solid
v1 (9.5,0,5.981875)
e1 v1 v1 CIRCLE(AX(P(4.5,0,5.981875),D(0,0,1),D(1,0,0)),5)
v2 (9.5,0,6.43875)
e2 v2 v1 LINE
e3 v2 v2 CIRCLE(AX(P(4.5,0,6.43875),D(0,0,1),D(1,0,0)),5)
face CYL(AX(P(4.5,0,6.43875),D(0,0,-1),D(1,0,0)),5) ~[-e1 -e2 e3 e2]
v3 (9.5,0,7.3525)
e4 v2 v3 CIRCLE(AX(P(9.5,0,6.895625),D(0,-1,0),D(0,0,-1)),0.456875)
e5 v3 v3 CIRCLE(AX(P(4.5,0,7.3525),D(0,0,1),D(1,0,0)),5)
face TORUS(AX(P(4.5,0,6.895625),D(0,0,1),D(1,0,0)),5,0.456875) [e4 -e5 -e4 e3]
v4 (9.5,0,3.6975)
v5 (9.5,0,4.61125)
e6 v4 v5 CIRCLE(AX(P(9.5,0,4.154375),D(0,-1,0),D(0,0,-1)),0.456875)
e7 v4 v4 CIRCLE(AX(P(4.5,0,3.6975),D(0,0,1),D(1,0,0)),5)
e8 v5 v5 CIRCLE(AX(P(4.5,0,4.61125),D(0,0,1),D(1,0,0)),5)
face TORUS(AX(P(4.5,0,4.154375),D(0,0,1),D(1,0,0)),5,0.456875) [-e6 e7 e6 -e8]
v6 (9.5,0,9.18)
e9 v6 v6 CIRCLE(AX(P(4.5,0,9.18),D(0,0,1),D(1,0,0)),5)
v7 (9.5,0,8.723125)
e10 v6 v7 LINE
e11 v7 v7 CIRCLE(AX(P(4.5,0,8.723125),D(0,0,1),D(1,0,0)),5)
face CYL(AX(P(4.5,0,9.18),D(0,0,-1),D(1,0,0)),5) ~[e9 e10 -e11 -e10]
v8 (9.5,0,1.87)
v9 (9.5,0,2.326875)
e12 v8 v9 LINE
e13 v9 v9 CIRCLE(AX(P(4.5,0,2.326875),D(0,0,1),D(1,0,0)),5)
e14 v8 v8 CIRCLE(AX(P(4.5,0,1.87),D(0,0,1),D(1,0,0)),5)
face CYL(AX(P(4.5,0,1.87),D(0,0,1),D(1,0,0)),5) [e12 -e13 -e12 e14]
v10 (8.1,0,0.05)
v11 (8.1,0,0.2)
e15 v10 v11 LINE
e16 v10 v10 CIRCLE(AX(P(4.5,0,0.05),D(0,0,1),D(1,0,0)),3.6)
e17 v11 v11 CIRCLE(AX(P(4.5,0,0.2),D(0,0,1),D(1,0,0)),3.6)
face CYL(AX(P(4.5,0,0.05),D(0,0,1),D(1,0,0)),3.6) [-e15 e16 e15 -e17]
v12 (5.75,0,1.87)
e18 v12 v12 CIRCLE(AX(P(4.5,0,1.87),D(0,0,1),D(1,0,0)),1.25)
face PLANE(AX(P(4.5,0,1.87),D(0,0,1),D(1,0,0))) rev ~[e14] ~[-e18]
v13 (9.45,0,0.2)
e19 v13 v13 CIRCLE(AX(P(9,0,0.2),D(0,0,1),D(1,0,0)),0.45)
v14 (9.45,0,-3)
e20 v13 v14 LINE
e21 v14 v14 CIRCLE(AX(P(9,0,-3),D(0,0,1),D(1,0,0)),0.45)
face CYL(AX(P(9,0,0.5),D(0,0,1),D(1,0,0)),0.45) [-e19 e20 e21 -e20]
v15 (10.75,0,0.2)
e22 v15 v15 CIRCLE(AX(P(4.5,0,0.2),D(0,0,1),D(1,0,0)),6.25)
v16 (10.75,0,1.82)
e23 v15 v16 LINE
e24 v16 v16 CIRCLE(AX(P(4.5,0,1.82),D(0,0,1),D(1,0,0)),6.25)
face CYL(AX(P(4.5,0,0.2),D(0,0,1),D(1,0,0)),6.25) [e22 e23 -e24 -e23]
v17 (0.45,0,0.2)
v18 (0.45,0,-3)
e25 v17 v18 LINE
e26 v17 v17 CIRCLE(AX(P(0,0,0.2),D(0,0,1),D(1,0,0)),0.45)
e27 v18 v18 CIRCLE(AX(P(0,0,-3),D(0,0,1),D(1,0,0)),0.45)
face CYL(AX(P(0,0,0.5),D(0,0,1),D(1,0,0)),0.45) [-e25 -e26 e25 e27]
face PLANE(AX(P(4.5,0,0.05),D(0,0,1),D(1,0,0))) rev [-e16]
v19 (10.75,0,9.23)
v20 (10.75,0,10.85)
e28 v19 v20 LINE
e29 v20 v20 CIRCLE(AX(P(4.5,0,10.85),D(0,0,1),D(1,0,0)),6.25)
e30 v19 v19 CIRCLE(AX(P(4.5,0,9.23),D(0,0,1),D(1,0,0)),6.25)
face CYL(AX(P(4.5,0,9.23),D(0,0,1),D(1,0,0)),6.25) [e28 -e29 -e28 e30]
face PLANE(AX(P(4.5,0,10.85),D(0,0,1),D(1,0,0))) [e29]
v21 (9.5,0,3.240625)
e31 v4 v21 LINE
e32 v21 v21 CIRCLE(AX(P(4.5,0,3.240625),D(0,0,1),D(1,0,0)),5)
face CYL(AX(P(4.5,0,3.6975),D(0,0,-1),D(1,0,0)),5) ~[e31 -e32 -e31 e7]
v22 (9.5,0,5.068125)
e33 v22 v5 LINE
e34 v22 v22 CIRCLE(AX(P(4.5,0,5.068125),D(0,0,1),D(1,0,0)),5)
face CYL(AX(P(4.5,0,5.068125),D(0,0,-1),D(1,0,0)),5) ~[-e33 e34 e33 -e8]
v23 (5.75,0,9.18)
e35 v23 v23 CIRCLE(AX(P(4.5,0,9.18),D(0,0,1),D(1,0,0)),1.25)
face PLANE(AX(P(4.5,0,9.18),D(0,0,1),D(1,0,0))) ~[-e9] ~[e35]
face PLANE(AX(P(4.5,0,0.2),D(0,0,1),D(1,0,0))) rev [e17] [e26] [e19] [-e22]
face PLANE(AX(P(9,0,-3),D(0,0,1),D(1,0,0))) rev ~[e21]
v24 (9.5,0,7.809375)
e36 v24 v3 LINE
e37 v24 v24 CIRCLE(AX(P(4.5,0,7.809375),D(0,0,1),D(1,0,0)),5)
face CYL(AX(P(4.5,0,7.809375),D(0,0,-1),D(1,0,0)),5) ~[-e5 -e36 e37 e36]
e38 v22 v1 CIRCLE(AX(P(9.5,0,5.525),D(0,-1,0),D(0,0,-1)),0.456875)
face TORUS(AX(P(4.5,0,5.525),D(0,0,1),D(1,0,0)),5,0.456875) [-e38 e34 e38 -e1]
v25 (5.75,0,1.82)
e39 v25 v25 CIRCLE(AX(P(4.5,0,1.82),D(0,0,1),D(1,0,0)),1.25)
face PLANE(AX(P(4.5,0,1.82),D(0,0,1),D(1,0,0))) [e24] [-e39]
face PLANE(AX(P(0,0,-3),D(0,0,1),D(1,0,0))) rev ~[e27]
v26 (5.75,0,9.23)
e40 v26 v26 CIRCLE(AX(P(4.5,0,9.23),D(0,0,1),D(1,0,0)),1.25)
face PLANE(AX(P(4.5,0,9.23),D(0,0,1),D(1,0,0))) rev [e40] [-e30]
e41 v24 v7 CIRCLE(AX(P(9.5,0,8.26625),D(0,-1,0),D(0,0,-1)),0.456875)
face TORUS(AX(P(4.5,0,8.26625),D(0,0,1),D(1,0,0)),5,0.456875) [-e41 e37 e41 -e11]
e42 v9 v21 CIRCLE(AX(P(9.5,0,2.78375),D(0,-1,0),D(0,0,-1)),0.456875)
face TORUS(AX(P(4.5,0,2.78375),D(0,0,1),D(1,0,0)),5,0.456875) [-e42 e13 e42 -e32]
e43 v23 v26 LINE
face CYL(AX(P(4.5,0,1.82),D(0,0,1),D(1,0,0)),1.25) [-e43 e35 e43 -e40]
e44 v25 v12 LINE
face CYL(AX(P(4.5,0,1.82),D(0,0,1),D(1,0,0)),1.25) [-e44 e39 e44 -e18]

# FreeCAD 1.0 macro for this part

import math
import FreeCAD as App
import Part
import Sketcher
from FreeCAD import Vector
Q = App.Units.Quantity

doc = App.newDocument("Part")
body = doc.addObject("PartDesign::Body", "Body")

sketch1 = body.newObject("Sketcher::SketchObject", "Sketch")
sketch1.AttachmentSupport = (doc.getObject("XZ_Plane"), [""])
sketch1.MapMode = "FlatFace"
sketch1.addGeometry(Part.LineSegment(Vector(4.5, 0.05, 0), Vector(8.1, 0.05, 0)), False)
sketch1.addGeometry(Part.LineSegment(Vector(8.1, 0.05, 0), Vector(8.1, 0.2, 0)), False)
sketch1.addGeometry(Part.LineSegment(Vector(8.1, 0.2, 0), Vector(10.75, 0.2, 0)), False)
sketch1.addGeometry(Part.LineSegment(Vector(10.75, 0.2, 0), Vector(10.75, 1.82, 0)), False)
sketch1.addGeometry(Part.LineSegment(Vector(10.75, 1.82, 0), Vector(5.75, 1.82, 0)), False)
sketch1.addGeometry(Part.LineSegment(Vector(5.75, 1.82, 0), Vector(5.75, 9.23, 0)), False)
sketch1.addGeometry(Part.LineSegment(Vector(5.75, 9.23, 0), Vector(10.75, 9.23, 0)), False)
sketch1.addGeometry(Part.LineSegment(Vector(10.75, 9.23, 0), Vector(10.75, 10.85, 0)), False)
sketch1.addGeometry(Part.LineSegment(Vector(10.75, 10.85, 0), Vector(4.5, 10.85, 0)), False)
sketch1.addGeometry(Part.LineSegment(Vector(4.5, 10.85, 0), Vector(4.5, 0.05, 0)), False)
sketch1.addGeometry(Part.LineSegment(Vector(4.5, 0.05, 0), Vector(4.5, 10.85, 0)), True)
sketch1.addConstraint(Sketcher.Constraint("Coincident", 0, 2, 1, 1))
sketch1.addConstraint(Sketcher.Constraint("Coincident", 1, 2, 2, 1))
sketch1.addConstraint(Sketcher.Constraint("Coincident", 2, 2, 3, 1))
sketch1.addConstraint(Sketcher.Constraint("Coincident", 3, 2, 4, 1))
sketch1.addConstraint(Sketcher.Constraint("Coincident", 4, 2, 5, 1))
sketch1.addConstraint(Sketcher.Constraint("Coincident", 5, 2, 6, 1))
sketch1.addConstraint(Sketcher.Constraint("Coincident", 6, 2, 7, 1))
sketch1.addConstraint(Sketcher.Constraint("Coincident", 7, 2, 8, 1))
sketch1.addConstraint(Sketcher.Constraint("Coincident", 8, 2, 9, 1))
sketch1.addConstraint(Sketcher.Constraint("Coincident", 9, 2, 0, 1))
sketch1.addConstraint(Sketcher.Constraint("Horizontal", 0))
sketch1.addConstraint(Sketcher.Constraint("Vertical", 1))
sketch1.addConstraint(Sketcher.Constraint("Horizontal", 2))
sketch1.addConstraint(Sketcher.Constraint("Vertical", 3))
sketch1.addConstraint(Sketcher.Constraint("Horizontal", 4))
sketch1.addConstraint(Sketcher.Constraint("Vertical", 5))
sketch1.addConstraint(Sketcher.Constraint("Horizontal", 6))
sketch1.addConstraint(Sketcher.Constraint("Vertical", 7))
sketch1.addConstraint(Sketcher.Constraint("Horizontal", 8))
sketch1.addConstraint(Sketcher.Constraint("Vertical", 9))
sketch1.addConstraint(Sketcher.Constraint("Vertical", 10))
sketch1.addConstraint(Sketcher.Constraint("Coincident", 10, 1, 9, 2))
sketch1.addConstraint(Sketcher.Constraint("Horizontal", 7, 2, 10, 2))
sketch1.addConstraint(Sketcher.Constraint("Vertical", 3, 2, 6, 2))
sketch1.addConstraint(Sketcher.Constraint("Equal", 3, 7))
sketch1.addConstraint(Sketcher.Constraint("DistanceX", 4, 2, 4, 1, Q("5 mm")))
sketch1.addConstraint(Sketcher.Constraint("DistanceX", 0, 1, 0, 2, Q("3.6 mm")))
sketch1.addConstraint(Sketcher.Constraint("DistanceY", 9, 2, 9, 1, Q("10.8 mm")))
sketch1.addConstraint(Sketcher.Constraint("DistanceX", 2, 1, 2, 2, Q("2.65 mm")))
sketch1.addConstraint(Sketcher.Constraint("DistanceY", 1, 1, 1, 2, Q("0.15 mm")))
sketch1.addConstraint(Sketcher.Constraint("DistanceY", 3, 1, 3, 2, Q("1.62 mm")))
sketch1.addConstraint(Sketcher.Constraint("DistanceX", -1, 1, 0, 2, Q("8.1 mm")))
sketch1.addConstraint(Sketcher.Constraint("DistanceY", -1, 1, 1, 2, Q("0.2 mm")))
revolution = body.newObject("PartDesign::Revolution", "Revolution")
revolution.Profile = sketch1
revolution.ReferenceAxis = (sketch1, ["Axis0"])
revolution.Angle = 360
body2 = doc.addObject("PartDesign::Body", "Body001")
body2.AllowCompound = True

sketch2 = body2.newObject("Sketcher::SketchObject", "Sketch001")
sketch2.AttachmentSupport = (doc.getObject("XY_Plane001"), [""])
sketch2.MapMode = "FlatFace"
sketch2.AttachmentOffset = App.Placement(Vector(0, 0, 0.5), App.Rotation())
sketch2.addGeometry(Part.Circle(Vector(0, 0, 0), Vector(0, 0, 1), 0.45), False)
sketch2.addGeometry(Part.Circle(Vector(9, 0, 0), Vector(0, 0, 1), 0.45), False)
sketch2.addConstraint(Sketcher.Constraint("Coincident", 0, 3, -1, 1))
sketch2.addConstraint(Sketcher.Constraint("Equal", 0, 1))
sketch2.addConstraint(Sketcher.Constraint("PointOnObject", 1, 3, -1))
sketch2.addConstraint(Sketcher.Constraint("Diameter", 0, Q("0.9 mm")))
sketch2.addConstraint(Sketcher.Constraint("DistanceX", -1, 1, 1, 3, Q("9 mm")))
pad1 = body2.newObject("PartDesign::Pad", "Pad")
pad1.Profile = sketch2
pad1.Length = 3.5
pad1.Reversed = True
body3 = doc.addObject("PartDesign::Body", "Body002")

sketch3 = body3.newObject("Sketcher::SketchObject", "Sketch002")
sketch3.AttachmentSupport = (doc.getObject("XZ_Plane002"), [""])
sketch3.MapMode = "FlatFace"
sketch3.addGeometry(Part.LineSegment(Vector(5.75, 1.87, 0), Vector(9.5, 1.87, 0)), False)
sketch3.addGeometry(Part.LineSegment(Vector(9.5, 1.87, 0), Vector(9.5, 2.326875, 0)), False)
sketch3.addGeometry(Part.ArcOfCircle(Part.Circle(Vector(9.5, 2.78375, 0), Vector(0, 0, 1), 0.456875), math.radians(-90), math.radians(90)), False)
sketch3.addGeometry(Part.LineSegment(Vector(9.5, 3.240625, 0), Vector(9.5, 3.6975, 0)), False)
sketch3.addGeometry(Part.ArcOfCircle(Part.Circle(Vector(9.5, 4.154375, 0), Vector(0, 0, 1), 0.456875), math.radians(-90), math.radians(90)), False)
sketch3.addGeometry(Part.LineSegment(Vector(9.5, 4.61125, 0), Vector(9.5, 5.068125, 0)), False)
sketch3.addGeometry(Part.ArcOfCircle(Part.Circle(Vector(9.5, 5.525, 0), Vector(0, 0, 1), 0.456875), math.radians(-90), math.radians(90)), False)
sketch3.addGeometry(Part.LineSegment(Vector(9.5, 5.981875, 0), Vector(9.5, 6.43875, 0)), False)
sketch3.addGeometry(Part.ArcOfCircle(Part.Circle(Vector(9.5, 6.895625, 0), Vector(0, 0, 1), 0.456875), math.radians(-90), math.radians(90)), False)
sketch3.addGeometry(Part.LineSegment(Vector(9.5, 7.3525, 0), Vector(9.5, 7.809375, 0)), False)
sketch3.addGeometry(Part.ArcOfCircle(Part.Circle(Vector(9.5, 8.26625, 0), Vector(0, 0, 1), 0.456875), math.radians(-90), math.radians(90)), False)
sketch3.addGeometry(Part.LineSegment(Vector(9.5, 8.723125, 0), Vector(9.5, 9.18, 0)), False)
sketch3.addGeometry(Part.LineSegment(Vector(9.5, 9.18, 0), Vector(5.75, 9.18, 0)), False)
sketch3.addGeometry(Part.LineSegment(Vector(5.75, 9.18, 0), Vector(5.75, 1.87, 0)), False)
sketch3.addGeometry(Part.LineSegment(Vector(4.5, 1.87, 0), Vector(4.5, 9.18, 0)), True)
sketch3.addConstraint(Sketcher.Constraint("Coincident", 0, 2, 1, 1))
sketch3.addConstraint(Sketcher.Constraint("Coincident", 1, 2, 2, 1))
sketch3.addConstraint(Sketcher.Constraint("Coincident", 2, 2, 3, 1))
sketch3.addConstraint(Sketcher.Constraint("Coincident", 3, 2, 4, 1))
sketch3.addConstraint(Sketcher.Constraint("Coincident", 4, 2, 5, 1))
sketch3.addConstraint(Sketcher.Constraint("Coincident", 5, 2, 6, 1))
sketch3.addConstraint(Sketcher.Constraint("Coincident", 6, 2, 7, 1))
sketch3.addConstraint(Sketcher.Constraint("Coincident", 7, 2, 8, 1))
sketch3.addConstraint(Sketcher.Constraint("Coincident", 8, 2, 9, 1))
sketch3.addConstraint(Sketcher.Constraint("Coincident", 9, 2, 10, 1))
sketch3.addConstraint(Sketcher.Constraint("Coincident", 10, 2, 11, 1))
sketch3.addConstraint(Sketcher.Constraint("Coincident", 11, 2, 12, 1))
sketch3.addConstraint(Sketcher.Constraint("Coincident", 12, 2, 13, 1))
sketch3.addConstraint(Sketcher.Constraint("Coincident", 13, 2, 0, 1))
sketch3.addConstraint(Sketcher.Constraint("Horizontal", 0))
sketch3.addConstraint(Sketcher.Constraint("Vertical", 1))
sketch3.addConstraint(Sketcher.Constraint("Vertical", 3))
sketch3.addConstraint(Sketcher.Constraint("Vertical", 5))
sketch3.addConstraint(Sketcher.Constraint("Vertical", 7))
sketch3.addConstraint(Sketcher.Constraint("Vertical", 9))
sketch3.addConstraint(Sketcher.Constraint("Vertical", 11))
sketch3.addConstraint(Sketcher.Constraint("Horizontal", 12))
sketch3.addConstraint(Sketcher.Constraint("Vertical", 13))
sketch3.addConstraint(Sketcher.Constraint("Vertical", 14))
sketch3.addConstraint(Sketcher.Constraint("Equal", 2, 4))
sketch3.addConstraint(Sketcher.Constraint("Equal", 4, 6))
sketch3.addConstraint(Sketcher.Constraint("Equal", 6, 8))
sketch3.addConstraint(Sketcher.Constraint("Equal", 8, 10))
sketch3.addConstraint(Sketcher.Constraint("Horizontal", 13, 2, 14, 1))
sketch3.addConstraint(Sketcher.Constraint("Horizontal", 12, 2, 14, 2))
sketch3.addConstraint(Sketcher.Constraint("Vertical", 2, 3, 4, 3))
sketch3.addConstraint(Sketcher.Constraint("Vertical", 4, 3, 6, 3))
sketch3.addConstraint(Sketcher.Constraint("Vertical", 6, 3, 8, 3))
sketch3.addConstraint(Sketcher.Constraint("Vertical", 8, 3, 10, 3))
sketch3.addConstraint(Sketcher.Constraint("Vertical", 10, 3, 0, 2))
sketch3.addConstraint(Sketcher.Constraint("Vertical", 1, 2, 2, 2))
sketch3.addConstraint(Sketcher.Constraint("Vertical", 3, 2, 4, 2))
sketch3.addConstraint(Sketcher.Constraint("Vertical", 5, 2, 6, 2))
sketch3.addConstraint(Sketcher.Constraint("Vertical", 7, 2, 8, 2))
sketch3.addConstraint(Sketcher.Constraint("Vertical", 9, 2, 10, 2))
sketch3.addConstraint(Sketcher.Constraint("Equal", 1, 3))
sketch3.addConstraint(Sketcher.Constraint("Equal", 3, 5))
sketch3.addConstraint(Sketcher.Constraint("Equal", 5, 7))
sketch3.addConstraint(Sketcher.Constraint("Equal", 7, 9))
sketch3.addConstraint(Sketcher.Constraint("Equal", 9, 11))
sketch3.addConstraint(Sketcher.Constraint("DistanceX", 14, 1, 0, 2, Q("5 mm")))
sketch3.addConstraint(Sketcher.Constraint("DistanceX", 0, 1, 0, 2, Q("3.75 mm")))
sketch3.addConstraint(Sketcher.Constraint("DistanceY", 13, 2, 13, 1, Q("7.31 mm")))
sketch3.addConstraint(Sketcher.Constraint("DistanceX", -1, 1, 2, 3, Q("9.5 mm")))
sketch3.addConstraint(Sketcher.Constraint("DistanceY", -1, 1, 0, 2, Q("1.87 mm")))
sketch3.addConstraint(Sketcher.Constraint("Radius", 2, Q("0.456875 mm")))
revolution2 = body3.newObject("PartDesign::Revolution", "Revolution001")
revolution2.Profile = sketch3
revolution2.ReferenceAxis = (sketch3, ["Axis0"])
revolution2.Angle = 360
doc.recompute()

boolean = body3.newObject("PartDesign::Boolean", "Boolean")
boolean.Type = "Fuse"
boolean.addObjects([body])
doc.recompute()

boolean2 = body3.newObject("PartDesign::Boolean", "Boolean001")
boolean2.Type = "Fuse"
boolean2.addObjects([body2])

doc.recompute()
